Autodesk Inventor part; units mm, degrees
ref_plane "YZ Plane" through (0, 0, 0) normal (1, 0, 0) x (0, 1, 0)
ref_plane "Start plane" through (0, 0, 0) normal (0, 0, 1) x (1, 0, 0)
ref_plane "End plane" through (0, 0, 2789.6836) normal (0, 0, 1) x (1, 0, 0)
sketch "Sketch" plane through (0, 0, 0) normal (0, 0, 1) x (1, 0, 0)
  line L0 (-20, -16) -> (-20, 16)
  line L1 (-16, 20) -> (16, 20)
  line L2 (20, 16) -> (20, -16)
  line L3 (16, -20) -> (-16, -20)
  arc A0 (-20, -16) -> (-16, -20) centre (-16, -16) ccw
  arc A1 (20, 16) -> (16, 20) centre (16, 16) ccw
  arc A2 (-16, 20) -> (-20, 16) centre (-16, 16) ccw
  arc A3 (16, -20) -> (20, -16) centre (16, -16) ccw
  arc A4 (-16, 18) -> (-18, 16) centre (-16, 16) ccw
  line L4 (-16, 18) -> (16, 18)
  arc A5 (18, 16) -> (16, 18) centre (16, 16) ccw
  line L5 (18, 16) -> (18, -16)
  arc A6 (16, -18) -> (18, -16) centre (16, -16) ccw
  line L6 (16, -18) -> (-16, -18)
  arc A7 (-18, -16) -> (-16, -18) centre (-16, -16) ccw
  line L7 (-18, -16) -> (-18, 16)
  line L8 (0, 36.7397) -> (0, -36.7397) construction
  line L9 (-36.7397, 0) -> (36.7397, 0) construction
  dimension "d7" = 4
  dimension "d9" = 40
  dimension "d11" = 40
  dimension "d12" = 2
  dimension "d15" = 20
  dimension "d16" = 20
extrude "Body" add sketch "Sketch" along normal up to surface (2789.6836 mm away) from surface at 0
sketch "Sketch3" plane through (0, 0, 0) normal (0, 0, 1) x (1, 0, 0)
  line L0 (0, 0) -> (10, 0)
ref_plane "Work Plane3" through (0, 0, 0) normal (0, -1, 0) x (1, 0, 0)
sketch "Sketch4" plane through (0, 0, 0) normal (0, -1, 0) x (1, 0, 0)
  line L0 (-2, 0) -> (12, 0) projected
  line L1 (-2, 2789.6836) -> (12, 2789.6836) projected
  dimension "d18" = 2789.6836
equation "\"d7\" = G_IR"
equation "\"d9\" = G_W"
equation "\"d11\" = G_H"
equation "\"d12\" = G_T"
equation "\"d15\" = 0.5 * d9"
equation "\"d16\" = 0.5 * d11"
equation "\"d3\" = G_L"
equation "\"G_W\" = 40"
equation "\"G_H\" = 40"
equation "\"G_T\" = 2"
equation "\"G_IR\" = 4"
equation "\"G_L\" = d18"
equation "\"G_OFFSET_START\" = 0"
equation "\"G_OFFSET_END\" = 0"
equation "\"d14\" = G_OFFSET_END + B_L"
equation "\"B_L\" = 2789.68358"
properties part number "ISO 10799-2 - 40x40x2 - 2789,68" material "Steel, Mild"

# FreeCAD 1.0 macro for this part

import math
import FreeCAD as App
import Part
import Sketcher

V = App.Vector

doc = App.newDocument("Part")
body = doc.addObject("PartDesign::Body", "Body")

sketch1 = doc.addObject("Sketcher::SketchObject", "Sketch")
body.addObject(sketch1)
sketch1.AttachmentSupport = (doc.XY_Plane, [""])
sketch1.MapMode = "FlatFace"
sketch1.addGeometry([
    Part.LineSegment(V(-20, 16, 0), V(-20, -16, 0)),
    Part.ArcOfCircle(Part.Circle(V(-16, -16, 0), V(0, 0, 1), 4), math.radians(180), math.radians(270)),
    Part.LineSegment(V(-16, -20, 0), V(16, -20, 0)),
    Part.ArcOfCircle(Part.Circle(V(16, -16, 0), V(0, 0, 1), 4), math.radians(-90), math.radians(0)),
    Part.LineSegment(V(20, -16, 0), V(20, 16, 0)),
    Part.ArcOfCircle(Part.Circle(V(16, 16, 0), V(0, 0, 1), 4), math.radians(0), math.radians(90)),
    Part.LineSegment(V(16, 20, 0), V(-16, 20, 0)),
    Part.ArcOfCircle(Part.Circle(V(-16, 16, 0), V(0, 0, 1), 4), math.radians(90), math.radians(180)),
    Part.ArcOfCircle(Part.Circle(V(-16, 16, 0), V(0, 0, 1), 2), math.radians(90), math.radians(180)),
    Part.LineSegment(V(-16, 18, 0), V(16, 18, 0)),
    Part.ArcOfCircle(Part.Circle(V(16, 16, 0), V(0, 0, 1), 2), math.radians(0), math.radians(90)),
    Part.LineSegment(V(18, 16, 0), V(18, -16, 0)),
    Part.ArcOfCircle(Part.Circle(V(16, -16, 0), V(0, 0, 1), 2), math.radians(-90), math.radians(0)),
    Part.LineSegment(V(16, -18, 0), V(-16, -18, 0)),
    Part.ArcOfCircle(Part.Circle(V(-16, -16, 0), V(0, 0, 1), 2), math.radians(180), math.radians(270)),
    Part.LineSegment(V(-18, -16, 0), V(-18, 16, 0)),
], False)
sketch1.addConstraint([
    Sketcher.Constraint("Tangent", 0, 2, 1, 1),
    Sketcher.Constraint("Tangent", 1, 2, 2, 1),
    Sketcher.Constraint("Tangent", 2, 2, 3, 1),
    Sketcher.Constraint("Tangent", 3, 2, 4, 1),
    Sketcher.Constraint("Tangent", 4, 2, 5, 1),
    Sketcher.Constraint("Tangent", 5, 2, 6, 1),
    Sketcher.Constraint("Tangent", 6, 2, 7, 1),
    Sketcher.Constraint("Tangent", 7, 2, 0, 1),
    Sketcher.Constraint("Tangent", 8, 1, 9, 1),
    Sketcher.Constraint("Tangent", 9, 2, 10, 2),
    Sketcher.Constraint("Tangent", 10, 1, 11, 1),
    Sketcher.Constraint("Tangent", 11, 2, 12, 2),
    Sketcher.Constraint("Tangent", 12, 1, 13, 1),
    Sketcher.Constraint("Tangent", 13, 2, 14, 2),
    Sketcher.Constraint("Tangent", 14, 1, 15, 1),
    Sketcher.Constraint("Tangent", 15, 2, 8, 2),
    Sketcher.Constraint("Vertical", 0),
    Sketcher.Constraint("Horizontal", 2),
    Sketcher.Constraint("Vertical", 4),
    Sketcher.Constraint("Horizontal", 6),
    Sketcher.Constraint("Horizontal", 9),
    Sketcher.Constraint("Vertical", 11),
    Sketcher.Constraint("Horizontal", 13),
    Sketcher.Constraint("Vertical", 15),
    Sketcher.Constraint("Coincident", 8, 3, 7, 3),
    Sketcher.Constraint("Coincident", 10, 3, 5, 3),
    Sketcher.Constraint("Coincident", 12, 3, 3, 3),
    Sketcher.Constraint("Equal", 1, 3),
    Sketcher.Constraint("Equal", 3, 5),
    Sketcher.Constraint("Equal", 5, 7),
    Sketcher.Constraint("Equal", 12, 14),
    Sketcher.Constraint("Symmetric", 1, 3, 5, 3, -1, 1),
    Sketcher.Constraint("Equal", 13, 0),
    Sketcher.Constraint("Radius", 1, 4.0),
    Sketcher.Constraint("Radius", 8, 2.0),
    Sketcher.Constraint("DistanceX", 0, 2, -1, 1, 20.0),
])
pad1 = doc.addObject("PartDesign::Pad", "Pad")
body.addObject(pad1)
pad1.Profile = sketch1
pad1.Length = 2789.6836

doc.recompute()
